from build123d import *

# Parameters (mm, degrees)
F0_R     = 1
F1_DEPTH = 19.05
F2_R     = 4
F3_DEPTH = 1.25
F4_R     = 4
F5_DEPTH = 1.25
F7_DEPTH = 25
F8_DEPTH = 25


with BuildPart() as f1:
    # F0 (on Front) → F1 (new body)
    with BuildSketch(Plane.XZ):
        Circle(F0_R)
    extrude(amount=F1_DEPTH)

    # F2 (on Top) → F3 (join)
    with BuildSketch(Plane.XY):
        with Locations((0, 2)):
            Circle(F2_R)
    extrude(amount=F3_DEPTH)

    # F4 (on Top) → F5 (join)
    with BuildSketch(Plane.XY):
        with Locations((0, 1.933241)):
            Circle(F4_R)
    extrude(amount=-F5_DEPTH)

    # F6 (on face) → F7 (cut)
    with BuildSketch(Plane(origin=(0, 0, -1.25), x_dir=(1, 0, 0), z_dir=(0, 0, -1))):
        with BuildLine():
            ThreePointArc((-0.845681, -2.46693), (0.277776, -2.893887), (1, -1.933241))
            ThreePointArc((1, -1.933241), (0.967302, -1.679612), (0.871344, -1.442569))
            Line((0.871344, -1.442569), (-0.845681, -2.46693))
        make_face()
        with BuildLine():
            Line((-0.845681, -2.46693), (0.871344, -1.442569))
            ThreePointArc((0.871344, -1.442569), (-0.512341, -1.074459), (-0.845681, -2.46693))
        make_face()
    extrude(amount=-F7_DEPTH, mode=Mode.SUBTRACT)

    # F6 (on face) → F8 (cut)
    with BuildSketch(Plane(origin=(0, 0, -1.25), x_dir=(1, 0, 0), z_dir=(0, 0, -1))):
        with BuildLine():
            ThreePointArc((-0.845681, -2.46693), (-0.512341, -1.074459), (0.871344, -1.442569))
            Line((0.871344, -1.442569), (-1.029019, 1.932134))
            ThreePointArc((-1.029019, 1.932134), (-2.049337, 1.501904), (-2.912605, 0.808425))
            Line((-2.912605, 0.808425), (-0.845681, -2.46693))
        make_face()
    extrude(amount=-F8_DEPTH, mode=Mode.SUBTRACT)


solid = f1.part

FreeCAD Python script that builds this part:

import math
import FreeCAD as App
import Part
import Sketcher
from FreeCAD import Vector
Q = App.Units.Quantity

doc = App.newDocument("Part")
body = doc.addObject("PartDesign::Body", "Body")

sketch1 = doc.addObject("Sketcher::SketchObject", "Sketch")
body.addObject(sketch1)
sketch1.AttachmentSupport = (doc.XZ_Plane, [""])
sketch1.MapMode = "FlatFace"
sketch1.addGeometry(Part.Circle(Vector(0, 0, 0), Vector(0, 0, 1), 1), False)
sketch1.addConstraint(Sketcher.Constraint("Coincident", 0, 3, -1, 1))
sketch1.addConstraint(Sketcher.Constraint("Diameter", 0, Q("2 mm")))
pad1 = doc.addObject("PartDesign::Pad", "Pad")
body.addObject(pad1)
pad1.Profile = sketch1
pad1.Length = 19.05

sketch2 = doc.addObject("Sketcher::SketchObject", "Sketch001")
body.addObject(sketch2)
sketch2.AttachmentSupport = (doc.XY_Plane, [""])
sketch2.MapMode = "FlatFace"
sketch2.addGeometry(Part.Circle(Vector(0, 2, 0), Vector(0, 0, 1), 4), False)
sketch2.addConstraint(Sketcher.Constraint("PointOnObject", 0, 3, -2))
sketch2.addConstraint(Sketcher.Constraint("Diameter", 0, Q("8 mm")))
sketch2.addConstraint(Sketcher.Constraint("DistanceY", -1, 1, 0, 3, Q("2 mm")))
pad2 = doc.addObject("PartDesign::Pad", "Pad001")
body.addObject(pad2)
pad2.Profile = sketch2
pad2.Length = 1.25

sketch3 = doc.addObject("Sketcher::SketchObject", "Sketch002")
body.addObject(sketch3)
sketch3.AttachmentSupport = (doc.XY_Plane, [""])
sketch3.MapMode = "FlatFace"
sketch3.addGeometry(Part.Circle(Vector(0, 1.9, 0), Vector(0, 0, 1), 4), False)
sketch3.addConstraint(Sketcher.Constraint("PointOnObject", 0, 3, -2))
sketch3.addConstraint(Sketcher.Constraint("Diameter", 0, Q("8 mm")))
sketch3.addConstraint(Sketcher.Constraint("DistanceY", -1, 1, 0, 3, Q("1.933241 mm")))
pad3 = doc.addObject("PartDesign::Pad", "Pad002")
body.addObject(pad3)
pad3.Profile = sketch3
pad3.Length = 1.25
pad3.Reversed = True

sketch4 = doc.addObject("Sketcher::SketchObject", "Sketch003")
body.addObject(sketch4)
sketch4.AttachmentSupport = (doc.XY_Plane, [""])
sketch4.MapMode = "FlatFace"
sketch4.AttachmentOffset = App.Placement(Vector(0, 0, -1.25), App.Rotation())
sketch4.addGeometry(Part.ArcOfCircle(Part.Circle(Vector(0, 1.9, 0), Vector(0, 0, 1), 1), math.radians(0), math.radians(148)), False)
sketch4.addGeometry(Part.ArcOfCircle(Part.Circle(Vector(0, 1.9, 0), Vector(0, 0, 1), 1), math.radians(-29), math.radians(0)), False)
sketch4.addGeometry(Part.ArcOfCircle(Part.Circle(Vector(0, 1.9, 0), Vector(0, 0, 1), 1), math.radians(148), math.radians(331)), False)
sketch4.addConstraint(Sketcher.Constraint("Coincident", 0, 1, 1, 2))
sketch4.addConstraint(Sketcher.Constraint("Coincident", 1, 1, 2, 2))
sketch4.addConstraint(Sketcher.Constraint("Tangent", 2, 1, 0, 2))
sketch4.addConstraint(Sketcher.Constraint("Equal", 0, 2))
sketch4.addConstraint(Sketcher.Constraint("PointOnObject", 0, 3, -2))
sketch4.addConstraint(Sketcher.Constraint("Horizontal", 2, 3, 0, 1))
sketch4.addConstraint(Sketcher.Constraint("Radius", 0, Q("1 mm")))
sketch4.addConstraint(Sketcher.Constraint("Radius", 1, Q("0.999983 mm")))
sketch4.addConstraint(Sketcher.Constraint("DistanceX", 2, 1, 1, 3, Q("0.845698 mm")))
sketch4.addConstraint(Sketcher.Constraint("DistanceY", -1, 1, 0, 3, Q("1.933241 mm")))
sketch4.addConstraint(Sketcher.Constraint("DistanceY", -1, 1, 1, 1, Q("1.442569 mm")))
pocket1 = doc.addObject("PartDesign::Pocket", "Pocket")
body.addObject(pocket1)
pocket1.Profile = sketch4
pocket1.Length = 25
pocket1.Reversed = True

sketch5 = doc.addObject("Sketcher::SketchObject", "Sketch004")
body.addObject(sketch5)
sketch5.AttachmentSupport = (doc.XY_Plane, [""])
sketch5.MapMode = "FlatFace"
sketch5.AttachmentOffset = App.Placement(Vector(0, 0, -1.25), App.Rotation())
sketch5.addGeometry(Part.ArcOfCircle(Part.Circle(Vector(0, 1.9, 0), Vector(0, 0, 1), 1), math.radians(148), math.radians(331)), False)
sketch5.addGeometry(Part.LineSegment(Vector(0.9, 1.4, 0), Vector(-1, -1.9, 0)), False)
sketch5.addGeometry(Part.ArcOfCircle(Part.Circle(Vector(0, 1.9, 0), Vector(0, 0, 1), 4), math.radians(-137), math.radians(-105)), False)
sketch5.addGeometry(Part.LineSegment(Vector(-2.9, -0.8, 0), Vector(-0.8, 2.5, 0)), False)
sketch5.addConstraint(Sketcher.Constraint("Tangent", 0, 2, 1, 1))
sketch5.addConstraint(Sketcher.Constraint("Coincident", 1, 2, 2, 2))
sketch5.addConstraint(Sketcher.Constraint("Coincident", 2, 1, 3, 1))
sketch5.addConstraint(Sketcher.Constraint("Coincident", 3, 2, 0, 1))
sketch5.addConstraint(Sketcher.Constraint("Coincident", 2, 3, 0, 3))
sketch5.addConstraint(Sketcher.Constraint("PointOnObject", 0, 3, -2))
sketch5.addConstraint(Sketcher.Constraint("Radius", 0, Q("1 mm")))
sketch5.addConstraint(Sketcher.Constraint("Distance", 3, Q("3.873 mm")))
sketch5.addConstraint(Sketcher.Constraint("Radius", 2, Q("3.999997 mm")))
sketch5.addConstraint(Sketcher.Constraint("DistanceY", -1, 1, 0, 3, Q("1.933241 mm")))
sketch5.addConstraint(Sketcher.Constraint("DistanceY", -1, 1, 0, 2, Q("1.442569 mm")))
sketch5.addConstraint(Sketcher.Constraint("DistanceX", 3, 2, -1, 1, Q("0.845681 mm")))
pocket2 = doc.addObject("PartDesign::Pocket", "Pocket001")
body.addObject(pocket2)
pocket2.Profile = sketch5
pocket2.Length = 25
pocket2.Reversed = True

doc.recompute()
